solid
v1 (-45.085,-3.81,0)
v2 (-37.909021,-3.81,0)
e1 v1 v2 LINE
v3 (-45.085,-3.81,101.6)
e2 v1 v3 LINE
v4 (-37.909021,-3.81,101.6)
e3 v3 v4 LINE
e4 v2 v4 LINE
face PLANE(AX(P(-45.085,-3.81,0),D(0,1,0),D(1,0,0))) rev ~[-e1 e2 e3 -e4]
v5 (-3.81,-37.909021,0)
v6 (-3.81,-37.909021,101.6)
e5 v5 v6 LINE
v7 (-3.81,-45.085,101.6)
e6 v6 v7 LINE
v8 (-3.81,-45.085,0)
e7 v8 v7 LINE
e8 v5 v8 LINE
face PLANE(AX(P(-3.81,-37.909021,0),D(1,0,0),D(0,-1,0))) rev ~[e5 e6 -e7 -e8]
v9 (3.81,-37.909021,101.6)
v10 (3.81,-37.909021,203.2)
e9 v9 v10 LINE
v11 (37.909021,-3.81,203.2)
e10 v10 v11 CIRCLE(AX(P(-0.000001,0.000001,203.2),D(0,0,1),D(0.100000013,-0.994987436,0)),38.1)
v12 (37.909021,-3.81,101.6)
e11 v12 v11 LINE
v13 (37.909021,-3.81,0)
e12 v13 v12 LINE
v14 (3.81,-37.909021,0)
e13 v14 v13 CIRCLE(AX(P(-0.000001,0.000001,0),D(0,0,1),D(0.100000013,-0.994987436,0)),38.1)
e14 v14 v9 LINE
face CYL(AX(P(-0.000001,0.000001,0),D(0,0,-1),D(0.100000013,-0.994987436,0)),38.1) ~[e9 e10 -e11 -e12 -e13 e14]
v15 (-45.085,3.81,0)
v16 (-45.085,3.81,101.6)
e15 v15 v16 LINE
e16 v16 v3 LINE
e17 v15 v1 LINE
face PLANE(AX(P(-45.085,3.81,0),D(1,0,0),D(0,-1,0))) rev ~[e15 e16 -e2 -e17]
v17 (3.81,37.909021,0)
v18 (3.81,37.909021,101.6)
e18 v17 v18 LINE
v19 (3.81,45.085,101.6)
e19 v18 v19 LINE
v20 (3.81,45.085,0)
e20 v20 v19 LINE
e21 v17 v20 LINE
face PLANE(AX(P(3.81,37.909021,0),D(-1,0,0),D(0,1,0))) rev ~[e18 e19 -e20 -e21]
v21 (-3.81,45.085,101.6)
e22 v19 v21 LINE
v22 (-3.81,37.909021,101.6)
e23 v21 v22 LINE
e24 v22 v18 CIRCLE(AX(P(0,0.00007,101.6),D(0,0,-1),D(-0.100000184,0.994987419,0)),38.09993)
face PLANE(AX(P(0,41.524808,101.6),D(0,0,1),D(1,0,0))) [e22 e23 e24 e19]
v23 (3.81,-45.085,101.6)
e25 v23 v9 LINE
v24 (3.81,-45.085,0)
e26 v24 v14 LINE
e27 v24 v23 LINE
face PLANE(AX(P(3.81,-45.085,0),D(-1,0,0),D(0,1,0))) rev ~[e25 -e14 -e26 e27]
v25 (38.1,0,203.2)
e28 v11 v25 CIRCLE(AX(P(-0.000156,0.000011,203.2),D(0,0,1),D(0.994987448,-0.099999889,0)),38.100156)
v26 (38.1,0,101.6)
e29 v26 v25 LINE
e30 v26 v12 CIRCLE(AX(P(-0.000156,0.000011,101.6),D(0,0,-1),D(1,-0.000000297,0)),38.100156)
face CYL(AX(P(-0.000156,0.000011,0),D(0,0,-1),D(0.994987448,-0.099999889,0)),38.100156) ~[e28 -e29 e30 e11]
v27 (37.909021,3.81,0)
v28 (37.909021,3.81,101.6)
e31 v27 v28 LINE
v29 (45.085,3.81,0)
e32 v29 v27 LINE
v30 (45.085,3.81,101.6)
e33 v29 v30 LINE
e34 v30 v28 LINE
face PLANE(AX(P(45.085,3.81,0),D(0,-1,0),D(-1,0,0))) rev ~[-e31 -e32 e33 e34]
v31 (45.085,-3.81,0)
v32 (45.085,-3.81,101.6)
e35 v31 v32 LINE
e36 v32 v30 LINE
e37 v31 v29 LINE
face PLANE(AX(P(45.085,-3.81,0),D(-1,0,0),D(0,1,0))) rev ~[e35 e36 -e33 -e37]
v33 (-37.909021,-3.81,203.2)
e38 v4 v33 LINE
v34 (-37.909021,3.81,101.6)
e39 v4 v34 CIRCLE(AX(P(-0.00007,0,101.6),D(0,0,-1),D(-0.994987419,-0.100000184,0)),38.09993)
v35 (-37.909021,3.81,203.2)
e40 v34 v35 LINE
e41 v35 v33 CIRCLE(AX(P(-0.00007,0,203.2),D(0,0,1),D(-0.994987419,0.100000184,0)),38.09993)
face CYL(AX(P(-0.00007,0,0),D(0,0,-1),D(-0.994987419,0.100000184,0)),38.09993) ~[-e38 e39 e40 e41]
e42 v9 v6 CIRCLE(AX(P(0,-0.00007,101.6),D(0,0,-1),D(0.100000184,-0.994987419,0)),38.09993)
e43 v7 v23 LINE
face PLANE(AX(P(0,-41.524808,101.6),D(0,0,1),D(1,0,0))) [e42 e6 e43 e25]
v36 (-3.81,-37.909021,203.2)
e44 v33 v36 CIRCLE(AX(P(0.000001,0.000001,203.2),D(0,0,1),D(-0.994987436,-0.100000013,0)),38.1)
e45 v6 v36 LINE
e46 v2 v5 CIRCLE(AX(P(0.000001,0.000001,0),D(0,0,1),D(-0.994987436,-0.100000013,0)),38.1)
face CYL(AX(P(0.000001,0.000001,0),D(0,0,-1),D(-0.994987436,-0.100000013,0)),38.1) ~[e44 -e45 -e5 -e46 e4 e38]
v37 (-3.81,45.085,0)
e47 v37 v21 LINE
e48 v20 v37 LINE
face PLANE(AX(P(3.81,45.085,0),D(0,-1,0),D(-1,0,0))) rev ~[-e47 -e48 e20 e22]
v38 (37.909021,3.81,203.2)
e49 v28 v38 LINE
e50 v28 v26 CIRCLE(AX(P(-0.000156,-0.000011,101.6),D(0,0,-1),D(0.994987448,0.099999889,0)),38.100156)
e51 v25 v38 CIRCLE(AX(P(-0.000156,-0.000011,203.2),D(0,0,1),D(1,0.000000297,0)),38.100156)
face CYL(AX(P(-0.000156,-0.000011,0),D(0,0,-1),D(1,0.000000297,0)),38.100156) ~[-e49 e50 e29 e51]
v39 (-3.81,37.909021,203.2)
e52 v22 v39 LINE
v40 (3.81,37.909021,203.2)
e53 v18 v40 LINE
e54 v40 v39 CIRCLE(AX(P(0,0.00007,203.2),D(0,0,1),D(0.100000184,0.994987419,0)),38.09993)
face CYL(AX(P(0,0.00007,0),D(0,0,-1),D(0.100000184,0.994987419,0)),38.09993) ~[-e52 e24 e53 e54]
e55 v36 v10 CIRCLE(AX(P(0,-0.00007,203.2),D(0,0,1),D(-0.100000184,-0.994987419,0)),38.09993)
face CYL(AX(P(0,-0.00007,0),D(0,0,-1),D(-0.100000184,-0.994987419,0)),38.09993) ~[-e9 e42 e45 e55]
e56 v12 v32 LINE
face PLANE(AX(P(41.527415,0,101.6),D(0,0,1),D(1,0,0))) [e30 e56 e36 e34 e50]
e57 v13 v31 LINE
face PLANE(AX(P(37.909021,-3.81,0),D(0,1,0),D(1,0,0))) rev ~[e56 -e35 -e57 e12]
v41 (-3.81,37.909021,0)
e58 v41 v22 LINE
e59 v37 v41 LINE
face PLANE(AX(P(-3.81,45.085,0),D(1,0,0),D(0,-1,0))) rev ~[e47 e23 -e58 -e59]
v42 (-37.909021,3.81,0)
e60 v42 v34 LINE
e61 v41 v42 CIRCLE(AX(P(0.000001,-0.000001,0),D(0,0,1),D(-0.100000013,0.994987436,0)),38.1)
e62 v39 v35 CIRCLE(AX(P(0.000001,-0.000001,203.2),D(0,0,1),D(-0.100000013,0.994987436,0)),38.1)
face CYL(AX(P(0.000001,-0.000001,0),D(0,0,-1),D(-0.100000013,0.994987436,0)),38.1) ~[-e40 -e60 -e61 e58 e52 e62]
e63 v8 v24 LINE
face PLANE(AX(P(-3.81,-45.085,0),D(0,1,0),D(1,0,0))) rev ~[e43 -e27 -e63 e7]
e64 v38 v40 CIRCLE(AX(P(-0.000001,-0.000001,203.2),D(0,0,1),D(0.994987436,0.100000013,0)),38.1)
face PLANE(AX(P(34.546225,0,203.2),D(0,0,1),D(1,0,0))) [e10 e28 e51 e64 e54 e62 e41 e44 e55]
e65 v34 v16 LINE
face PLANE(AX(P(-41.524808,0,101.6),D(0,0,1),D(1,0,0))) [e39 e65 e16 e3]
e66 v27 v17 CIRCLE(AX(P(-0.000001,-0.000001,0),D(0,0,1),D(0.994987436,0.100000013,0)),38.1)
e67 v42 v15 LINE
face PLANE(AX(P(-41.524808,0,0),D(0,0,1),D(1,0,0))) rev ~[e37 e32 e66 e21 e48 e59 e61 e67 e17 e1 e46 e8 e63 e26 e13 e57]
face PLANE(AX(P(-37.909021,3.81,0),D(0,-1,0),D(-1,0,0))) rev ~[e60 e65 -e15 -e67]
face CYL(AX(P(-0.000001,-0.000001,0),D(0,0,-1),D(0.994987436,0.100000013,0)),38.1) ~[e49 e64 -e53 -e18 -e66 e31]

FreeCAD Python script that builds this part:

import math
import FreeCAD as App
import Part
import Sketcher
from FreeCAD import Vector
Q = App.Units.Quantity

doc = App.newDocument("Part")
body = doc.addObject("PartDesign::Body", "Body")

sketch1 = body.newObject("Sketcher::SketchObject", "Sketch")
sketch1.AttachmentSupport = (doc.getObject("XY_Plane"), [""])
sketch1.MapMode = "FlatFace"
sketch1.addGeometry(Part.ArcOfCircle(Part.Circle(Vector(-0.000156, 0.000011, 0), Vector(0, 0, 1), 38.100156), math.radians(-5.739164), math.radians(-0.000017)), False)
sketch1.addGeometry(Part.ArcOfCircle(Part.Circle(Vector(-0.000156, -0.000011, 0), Vector(0, 0, 1), 38.100156), math.radians(0.000017), math.radians(5.739164)), False)
sketch1.addGeometry(Part.ArcOfCircle(Part.Circle(Vector(-0.000001, -0.000001, 0), Vector(0, 0, 1), 38.1), math.radians(5.739171), math.radians(84.260829)), False)
sketch1.addGeometry(Part.ArcOfCircle(Part.Circle(Vector(0, 0.00007, 0), Vector(0, 0, 1), 38.09993), math.radians(84.260819), math.radians(95.739181)), False)
sketch1.addGeometry(Part.ArcOfCircle(Part.Circle(Vector(0.000001, -0.000001, 0), Vector(0, 0, 1), 38.1), math.radians(95.739171), math.radians(174.260829)), False)
sketch1.addGeometry(Part.ArcOfCircle(Part.Circle(Vector(-0.00007, 0, 0), Vector(0, 0, 1), 38.09993), math.radians(174.260819), math.radians(185.739181)), False)
sketch1.addGeometry(Part.ArcOfCircle(Part.Circle(Vector(0.000001, 0.000001, 0), Vector(0, 0, 1), 38.1), math.radians(-174.260829), math.radians(-95.739171)), False)
sketch1.addGeometry(Part.ArcOfCircle(Part.Circle(Vector(0, -0.00007, 0), Vector(0, 0, 1), 38.09993), math.radians(-95.739181), math.radians(-84.260819)), False)
sketch1.addGeometry(Part.ArcOfCircle(Part.Circle(Vector(-0.000001, 0.000001, 0), Vector(0, 0, 1), 38.1), math.radians(-84.260829), math.radians(-5.739171)), False)
sketch1.addConstraint(Sketcher.Constraint("Coincident", 0, 2, 1, 1))
sketch1.addConstraint(Sketcher.Constraint("Coincident", 1, 2, 2, 1))
sketch1.addConstraint(Sketcher.Constraint("Coincident", 2, 2, 3, 1))
sketch1.addConstraint(Sketcher.Constraint("Coincident", 3, 2, 4, 1))
sketch1.addConstraint(Sketcher.Constraint("Coincident", 4, 2, 5, 1))
sketch1.addConstraint(Sketcher.Constraint("Coincident", 5, 2, 6, 1))
sketch1.addConstraint(Sketcher.Constraint("Coincident", 6, 2, 7, 1))
sketch1.addConstraint(Sketcher.Constraint("Coincident", 7, 2, 8, 1))
sketch1.addConstraint(Sketcher.Constraint("Coincident", 8, 2, 0, 1))
sketch1.addConstraint(Sketcher.Constraint("Coincident", 2, 3, -1, 1))
sketch1.addConstraint(Sketcher.Constraint("Coincident", 4, 3, -1, 1))
sketch1.addConstraint(Sketcher.Constraint("Coincident", 6, 3, -1, 1))
sketch1.addConstraint(Sketcher.Constraint("Coincident", 8, 3, -1, 1))
sketch1.addConstraint(Sketcher.Constraint("PointOnObject", 3, 3, -2))
sketch1.addConstraint(Sketcher.Constraint("PointOnObject", 5, 3, -1))
sketch1.addConstraint(Sketcher.Constraint("PointOnObject", 7, 3, -2))
sketch1.addConstraint(Sketcher.Constraint("PointOnObject", 0, 2, -1))
sketch1.addConstraint(Sketcher.Constraint("Radius", 2, Q("1.5 in")))
sketch1.addConstraint(Sketcher.Constraint("DistanceX", -1, 1, 0, 2, Q("1.5 in")))
sketch1.addConstraint(Sketcher.Constraint("DistanceX", 3, 2, 2, 2, Q("0.3 in")))
sketch1.addConstraint(Sketcher.Constraint("DistanceY", 5, 2, 4, 2, Q("0.3 in")))
sketch1.addConstraint(Sketcher.Constraint("DistanceX", 6, 2, 7, 2, Q("0.3 in")))
sketch1.addConstraint(Sketcher.Constraint("DistanceY", 8, 2, 1, 2, Q("0.3 in")))
sketch1.addConstraint(Sketcher.Constraint("DistanceY", -1, 1, 1, 2, Q("0.15 in")))
sketch1.addConstraint(Sketcher.Constraint("DistanceX", -1, 1, 2, 2, Q("0.15 in")))
sketch1.addConstraint(Sketcher.Constraint("DistanceY", -1, 1, 4, 2, Q("0.15 in")))
sketch1.addConstraint(Sketcher.Constraint("DistanceX", 6, 2, -1, 1, Q("0.15 in")))
sketch1.addConstraint(Sketcher.Constraint("Radius", 3, Q("38.09993 mm")))
sketch1.addConstraint(Sketcher.Constraint("Radius", 5, Q("38.09993 mm")))
sketch1.addConstraint(Sketcher.Constraint("Radius", 7, Q("38.09993 mm")))
sketch1.addConstraint(Sketcher.Constraint("Radius", 0, Q("38.100156 mm")))
sketch1.addConstraint(Sketcher.Constraint("Radius", 1, Q("38.100156 mm")))
pad1 = body.newObject("PartDesign::Pad", "Pad")
pad1.Profile = sketch1
pad1.Length = Q("8 in")

sketch2 = body.newObject("Sketcher::SketchObject", "Sketch001")
sketch2.AttachmentSupport = (doc.getObject("XY_Plane"), [""])
sketch2.MapMode = "FlatFace"
sketch2.addGeometry(Part.ArcOfCircle(Part.Circle(Vector(-0.00007, 0, 0), Vector(0, 0, 1), 38.09993), math.radians(174.260819), math.radians(185.739181)), False)
sketch2.addGeometry(Part.LineSegment(Vector(-37.909021, 3.81, 0), Vector(-45.085, 3.81, 0)), False)
sketch2.addGeometry(Part.LineSegment(Vector(-45.085, 3.81, 0), Vector(-45.085, -3.81, 0)), False)
sketch2.addGeometry(Part.LineSegment(Vector(-45.085, -3.81, 0), Vector(-37.909021, -3.81, 0)), False)
sketch2.addGeometry(Part.LineSegment(Vector(3.81, -45.085, 0), Vector(3.81, -37.909021, 0)), False)
sketch2.addGeometry(Part.ArcOfCircle(Part.Circle(Vector(0, -0.00007, 0), Vector(0, 0, 1), 38.09993), math.radians(-95.739181), math.radians(-84.260819)), False)
sketch2.addGeometry(Part.LineSegment(Vector(-3.81, -37.909021, 0), Vector(-3.81, -45.085, 0)), False)
sketch2.addGeometry(Part.LineSegment(Vector(-3.81, -45.085, 0), Vector(3.81, -45.085, 0)), False)
sketch2.addGeometry(Part.ArcOfCircle(Part.Circle(Vector(-0.000156, -0.000011, 0), Vector(0, 0, 1), 38.100156), math.radians(0.000017), math.radians(5.739164)), False)
sketch2.addGeometry(Part.ArcOfCircle(Part.Circle(Vector(-0.000156, 0.000011, 0), Vector(0, 0, 1), 38.100156), math.radians(-5.739164), math.radians(-0.000017)), False)
sketch2.addGeometry(Part.LineSegment(Vector(37.909021, -3.81, 0), Vector(45.085, -3.81, 0)), False)
sketch2.addGeometry(Part.LineSegment(Vector(45.085, -3.81, 0), Vector(45.085, 3.81, 0)), False)
sketch2.addGeometry(Part.LineSegment(Vector(45.085, 3.81, 0), Vector(37.909021, 3.81, 0)), False)
sketch2.addGeometry(Part.ArcOfCircle(Part.Circle(Vector(0, 0.00007, 0), Vector(0, 0, 1), 38.09993), math.radians(84.260819), math.radians(95.739181)), False)
sketch2.addGeometry(Part.LineSegment(Vector(3.81, 37.909021, 0), Vector(3.81, 45.085, 0)), False)
sketch2.addGeometry(Part.LineSegment(Vector(3.81, 45.085, 0), Vector(-3.81, 45.085, 0)), False)
sketch2.addGeometry(Part.LineSegment(Vector(-3.81, 45.085, 0), Vector(-3.81, 37.909021, 0)), False)
sketch2.addConstraint(Sketcher.Constraint("Coincident", 0, 1, 1, 1))
sketch2.addConstraint(Sketcher.Constraint("Coincident", 1, 2, 2, 1))
sketch2.addConstraint(Sketcher.Constraint("Coincident", 2, 2, 3, 1))
sketch2.addConstraint(Sketcher.Constraint("Coincident", 3, 2, 0, 2))
sketch2.addConstraint(Sketcher.Constraint("Coincident", 4, 2, 5, 2))
sketch2.addConstraint(Sketcher.Constraint("Coincident", 5, 1, 6, 1))
sketch2.addConstraint(Sketcher.Constraint("Coincident", 6, 2, 7, 1))
sketch2.addConstraint(Sketcher.Constraint("Coincident", 7, 2, 4, 1))
sketch2.addConstraint(Sketcher.Constraint("Tangent", 8, 1, 9, 2))
sketch2.addConstraint(Sketcher.Constraint("Coincident", 9, 1, 10, 1))
sketch2.addConstraint(Sketcher.Constraint("Coincident", 10, 2, 11, 1))
sketch2.addConstraint(Sketcher.Constraint("Coincident", 11, 2, 12, 1))
sketch2.addConstraint(Sketcher.Constraint("Coincident", 12, 2, 8, 2))
sketch2.addConstraint(Sketcher.Constraint("Coincident", 13, 1, 14, 1))
sketch2.addConstraint(Sketcher.Constraint("Coincident", 14, 2, 15, 1))
sketch2.addConstraint(Sketcher.Constraint("Coincident", 15, 2, 16, 1))
sketch2.addConstraint(Sketcher.Constraint("Coincident", 16, 2, 13, 2))
sketch2.addConstraint(Sketcher.Constraint("Horizontal", 1))
sketch2.addConstraint(Sketcher.Constraint("Vertical", 2))
sketch2.addConstraint(Sketcher.Constraint("Horizontal", 3))
sketch2.addConstraint(Sketcher.Constraint("Vertical", 4))
sketch2.addConstraint(Sketcher.Constraint("Vertical", 6))
sketch2.addConstraint(Sketcher.Constraint("Horizontal", 7))
sketch2.addConstraint(Sketcher.Constraint("Horizontal", 10))
sketch2.addConstraint(Sketcher.Constraint("Vertical", 11))
sketch2.addConstraint(Sketcher.Constraint("Horizontal", 12))
sketch2.addConstraint(Sketcher.Constraint("Vertical", 14))
sketch2.addConstraint(Sketcher.Constraint("Horizontal", 15))
sketch2.addConstraint(Sketcher.Constraint("Vertical", 16))
sketch2.addConstraint(Sketcher.Constraint("Equal", 0, 5))
sketch2.addConstraint(Sketcher.Constraint("Equal", 8, 9))
sketch2.addConstraint(Sketcher.Constraint("Equal", 5, 13))
sketch2.addConstraint(Sketcher.Constraint("Symmetric", 5, 3, 13, 3, -1, 1))
sketch2.addConstraint(Sketcher.Constraint("Symmetric", 0, 1, 9, 1, -1, 1))
sketch2.addConstraint(Sketcher.Constraint("Symmetric", 2, 2, 11, 2, -1, 1))
sketch2.addConstraint(Sketcher.Constraint("Symmetric", 6, 2, 14, 2, -1, 1))
sketch2.addConstraint(Sketcher.Constraint("Symmetric", 4, 2, 5, 1, -2))
sketch2.addConstraint(Sketcher.Constraint("Symmetric", 3, 2, 9, 1, -2))
sketch2.addConstraint(Sketcher.Constraint("PointOnObject", 8, 1, -1))
sketch2.addConstraint(Sketcher.Constraint("Horizontal", 13, 1, 16, 2))
sketch2.addConstraint(Sketcher.Constraint("Vertical", 9, 1, 12, 2))
sketch2.addConstraint(Sketcher.Constraint("Equal", 15, 2))
sketch2.addConstraint(Sketcher.Constraint("Equal", 12, 4))
sketch2.addConstraint(Sketcher.Constraint("DistanceX", 7, 1, 7, 2, Q("0.3 in")))
sketch2.addConstraint(Sketcher.Constraint("DistanceX", -1, 1, 8, 1, Q("1.5 in")))
sketch2.addConstraint(Sketcher.Constraint("DistanceX", 1, 2, -1, 1, Q("1.775 in")))
sketch2.addConstraint(Sketcher.Constraint("DistanceY", 6, 2, -1, 1, Q("1.775 in")))
sketch2.addConstraint(Sketcher.Constraint("Radius", 0, Q("38.09993 mm")))
sketch2.addConstraint(Sketcher.Constraint("Radius", 8, Q("38.100156 mm")))
pad2 = body.newObject("PartDesign::Pad", "Pad001")
pad2.Profile = sketch2
pad2.Length = Q("4 in")

doc.recompute()
